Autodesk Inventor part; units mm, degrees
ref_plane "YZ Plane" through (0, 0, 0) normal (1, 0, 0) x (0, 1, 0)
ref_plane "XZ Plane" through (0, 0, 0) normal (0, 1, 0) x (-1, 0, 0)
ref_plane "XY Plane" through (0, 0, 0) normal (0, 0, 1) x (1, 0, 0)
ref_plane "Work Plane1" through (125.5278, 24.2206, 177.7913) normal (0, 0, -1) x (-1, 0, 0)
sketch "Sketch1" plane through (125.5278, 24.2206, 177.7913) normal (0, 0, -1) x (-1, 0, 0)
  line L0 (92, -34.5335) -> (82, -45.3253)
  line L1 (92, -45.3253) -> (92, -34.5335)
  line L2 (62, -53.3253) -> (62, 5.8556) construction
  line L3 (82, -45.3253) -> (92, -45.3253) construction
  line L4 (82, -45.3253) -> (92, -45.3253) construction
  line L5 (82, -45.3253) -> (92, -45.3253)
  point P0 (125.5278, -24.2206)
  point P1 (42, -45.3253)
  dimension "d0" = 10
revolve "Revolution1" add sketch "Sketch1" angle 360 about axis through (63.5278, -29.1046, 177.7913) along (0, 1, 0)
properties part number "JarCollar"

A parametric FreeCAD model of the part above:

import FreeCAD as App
import Part
import Sketcher
from FreeCAD import Vector
Q = App.Units.Quantity


def add_polygon(sketch, points):
    """Adds a closed chain of lines whose ends are joined by coincident constraints."""
    first, n = sketch.GeometryCount, len(points)
    for a, b in zip(points, points[1:] + points[:1]):
        sketch.addGeometry(Part.LineSegment(App.Vector(*a, 0), App.Vector(*b, 0)), False)
    for i in range(n):
        sketch.addConstraint(Sketcher.Constraint("Coincident", first + i, 2, first + (i + 1) % n, 1))

doc = App.newDocument("Part")
body = doc.addObject("PartDesign::Body", "Body")

# Sketch on XY plane
sketch1 = body.newObject("Sketcher::SketchObject", "Sketch")
sketch1.AttachmentSupport = (doc.getObject("XY_Plane"), [""])
sketch1.MapMode = "FlatFace"
sketch1.AttachmentOffset = App.Placement(Vector(0, 0, 177.7913), App.Rotation())
add_polygon(sketch1, [(34, -21), (34, -10), (44, -21)])  # lines 0-2
sketch1.addGeometry(Part.LineSegment(Vector(64, -21, 0), Vector(64, -10, 0)), True)  # axis
sketch1.addConstraint(Sketcher.Constraint("Vertical", 0))
sketch1.addConstraint(Sketcher.Constraint("Horizontal", 2))
sketch1.addConstraint(Sketcher.Constraint("Vertical", 3))
sketch1.addConstraint(Sketcher.Constraint("Horizontal", 2, 2, 3, 1))
sketch1.addConstraint(Sketcher.Constraint("Horizontal", 0, 2, 3, 2))
sketch1.addConstraint(Sketcher.Constraint("DistanceX", 2, 2, 2, 1, Q("10 mm")))
sketch1.addConstraint(Sketcher.Constraint("DistanceX", 1, 2, 3, 1, Q("20 mm")))
sketch1.addConstraint(Sketcher.Constraint("Angle", 1, Q("-47.181 deg")))
sketch1.addConstraint(Sketcher.Constraint("DistanceY", 0, 2, -1, 1, Q("10.313 mm")))
sketch1.addConstraint(Sketcher.Constraint("DistanceX", -1, 1, 0, 2, Q("33.5278 mm")))
revolution = body.newObject("PartDesign::Revolution", "Revolution")
revolution.Profile = sketch1
revolution.ReferenceAxis = (sketch1, ["Axis0"])
revolution.Angle = 360

doc.recompute()
